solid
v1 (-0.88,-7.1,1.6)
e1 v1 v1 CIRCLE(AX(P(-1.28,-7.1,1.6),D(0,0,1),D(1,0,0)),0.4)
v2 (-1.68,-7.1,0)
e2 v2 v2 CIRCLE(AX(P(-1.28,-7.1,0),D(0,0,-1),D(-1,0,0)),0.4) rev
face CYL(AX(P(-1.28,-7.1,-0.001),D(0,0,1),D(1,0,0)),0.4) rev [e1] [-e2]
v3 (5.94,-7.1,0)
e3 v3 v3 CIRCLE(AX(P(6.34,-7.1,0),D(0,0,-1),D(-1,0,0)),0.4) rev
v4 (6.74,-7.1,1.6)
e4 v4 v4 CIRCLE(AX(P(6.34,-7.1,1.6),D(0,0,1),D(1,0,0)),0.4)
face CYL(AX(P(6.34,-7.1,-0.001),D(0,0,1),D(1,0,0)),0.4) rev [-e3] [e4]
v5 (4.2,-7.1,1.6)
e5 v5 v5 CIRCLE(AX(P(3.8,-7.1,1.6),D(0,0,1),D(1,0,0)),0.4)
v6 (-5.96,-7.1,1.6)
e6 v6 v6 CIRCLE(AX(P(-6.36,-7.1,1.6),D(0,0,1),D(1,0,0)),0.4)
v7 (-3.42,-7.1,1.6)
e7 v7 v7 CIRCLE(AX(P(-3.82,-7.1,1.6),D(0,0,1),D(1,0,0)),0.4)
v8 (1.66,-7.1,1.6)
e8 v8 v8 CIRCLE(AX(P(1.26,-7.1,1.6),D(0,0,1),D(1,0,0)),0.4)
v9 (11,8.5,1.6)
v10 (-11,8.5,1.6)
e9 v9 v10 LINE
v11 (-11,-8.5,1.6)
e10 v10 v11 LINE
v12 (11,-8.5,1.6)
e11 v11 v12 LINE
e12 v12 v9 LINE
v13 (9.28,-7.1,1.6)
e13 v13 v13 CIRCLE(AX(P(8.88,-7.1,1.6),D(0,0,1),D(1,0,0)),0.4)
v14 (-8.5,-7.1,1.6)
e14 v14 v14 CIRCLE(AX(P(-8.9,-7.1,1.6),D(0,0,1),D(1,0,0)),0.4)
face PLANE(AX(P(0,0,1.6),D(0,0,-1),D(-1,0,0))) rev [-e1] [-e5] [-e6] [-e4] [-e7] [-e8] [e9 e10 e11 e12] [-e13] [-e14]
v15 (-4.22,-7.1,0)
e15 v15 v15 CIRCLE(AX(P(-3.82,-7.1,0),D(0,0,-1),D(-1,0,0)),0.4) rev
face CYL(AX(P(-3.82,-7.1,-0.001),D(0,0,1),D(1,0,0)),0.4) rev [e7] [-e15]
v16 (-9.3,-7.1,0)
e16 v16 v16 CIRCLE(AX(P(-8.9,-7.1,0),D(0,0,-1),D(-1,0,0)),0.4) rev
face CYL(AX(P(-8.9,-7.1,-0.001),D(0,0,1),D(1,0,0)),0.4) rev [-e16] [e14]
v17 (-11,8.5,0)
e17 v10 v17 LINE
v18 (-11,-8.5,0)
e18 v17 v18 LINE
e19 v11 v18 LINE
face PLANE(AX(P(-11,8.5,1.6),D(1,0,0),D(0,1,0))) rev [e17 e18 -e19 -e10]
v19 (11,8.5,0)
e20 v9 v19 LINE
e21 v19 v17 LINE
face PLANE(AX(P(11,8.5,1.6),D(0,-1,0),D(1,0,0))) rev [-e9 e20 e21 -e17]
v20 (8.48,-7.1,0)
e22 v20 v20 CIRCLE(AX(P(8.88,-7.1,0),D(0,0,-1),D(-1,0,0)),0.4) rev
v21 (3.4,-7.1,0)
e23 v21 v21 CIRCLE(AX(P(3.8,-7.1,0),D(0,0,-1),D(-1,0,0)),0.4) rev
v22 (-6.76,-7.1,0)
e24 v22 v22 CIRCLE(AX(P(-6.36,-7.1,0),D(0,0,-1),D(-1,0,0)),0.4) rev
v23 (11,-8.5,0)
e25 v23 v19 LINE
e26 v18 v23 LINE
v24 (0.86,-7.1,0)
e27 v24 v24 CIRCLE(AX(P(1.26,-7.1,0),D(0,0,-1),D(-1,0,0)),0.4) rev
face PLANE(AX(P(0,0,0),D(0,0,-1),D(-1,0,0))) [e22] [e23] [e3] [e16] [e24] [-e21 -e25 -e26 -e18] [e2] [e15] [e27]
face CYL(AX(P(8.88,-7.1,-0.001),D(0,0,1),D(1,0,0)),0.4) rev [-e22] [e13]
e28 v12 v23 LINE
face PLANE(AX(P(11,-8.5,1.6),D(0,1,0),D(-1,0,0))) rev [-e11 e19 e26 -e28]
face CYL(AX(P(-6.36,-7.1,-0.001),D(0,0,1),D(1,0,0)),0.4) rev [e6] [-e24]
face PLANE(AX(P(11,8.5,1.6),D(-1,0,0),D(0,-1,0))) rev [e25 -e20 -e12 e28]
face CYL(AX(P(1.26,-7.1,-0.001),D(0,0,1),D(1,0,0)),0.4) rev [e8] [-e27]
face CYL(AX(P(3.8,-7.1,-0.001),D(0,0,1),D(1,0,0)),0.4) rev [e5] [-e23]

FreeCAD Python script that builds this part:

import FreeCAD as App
import Part
import Sketcher

V = App.Vector
Q = App.Units.Quantity


def add_polygon(sketch, points):
    """Adds a closed chain of lines whose ends are joined by coincident constraints."""
    first, n = sketch.GeometryCount, len(points)
    for a, b in zip(points, points[1:] + points[:1]):
        sketch.addGeometry(Part.LineSegment(App.Vector(*a, 0), App.Vector(*b, 0)), False)
    for i in range(n):
        sketch.addConstraint(Sketcher.Constraint("Coincident", first + i, 2, first + (i + 1) % n, 1))

doc = App.newDocument("Part")
params = doc.addObject("Spreadsheet::Sheet", "Params")
for row, (alias, value) in enumerate([
    ("sketch1_width", "22 mm"),
    ("sketch1_height", "17 mm"),
    ("pad1_length", "1.6 mm"),
    ("sketch2_diameter", "0.8 mm"),
    ("sketch3_diameter", "0.8 mm"),
    ("sketch4_diameter", "0.8 mm"),
    ("sketch5_diameter", "0.8 mm"),
    ("sketch6_diameter", "0.8 mm"),
    ("sketch7_diameter", "0.8 mm"),
    ("sketch8_diameter", "0.8 mm"),
    ("sketch9_diameter", "0.8 mm"),
], start=1):
    params.set(f"A{row}", alias)
    params.set(f"B{row}", "=" + value)
    params.setAlias(f"B{row}", alias)

body = doc.addObject("PartDesign::Body", "Body")

# Sketch on XY plane
sketch1 = body.newObject("Sketcher::SketchObject", "Sketch")
sketch1.AttachmentSupport = (doc.getObject("XY_Plane"), [""])
sketch1.MapMode = "FlatFace"
add_polygon(sketch1, [(-11, 8), (-11, -8), (11, -8), (11, 8)])  # lines 0-3
sketch1.addConstraint([
    Sketcher.Constraint("Vertical", 0),
    Sketcher.Constraint("Horizontal", 1),
    Sketcher.Constraint("Vertical", 2),
    Sketcher.Constraint("Horizontal", 3),
    Sketcher.Constraint("Symmetric", 0, 2, 2, 2, -1, 1),
    Sketcher.Constraint("DistanceX", 1, 1, 1, 2, Q("22 mm")),
    Sketcher.Constraint("DistanceY", 0, 2, 0, 1, Q("17 mm")),
])
sketch1.setExpression("Constraints[9]", "Params.sketch1_width")
sketch1.setExpression("Constraints[10]", "Params.sketch1_height")
pad1 = body.newObject("PartDesign::Pad", "Pad")
pad1.Profile = sketch1
pad1.setExpression("Length", "Params.pad1_length")

# Sketch on XY plane
sketch2 = body.newObject("Sketcher::SketchObject", "Sketch001")
sketch2.AttachmentSupport = (doc.getObject("XY_Plane"), [""])
sketch2.MapMode = "FlatFace"
sketch2.AttachmentOffset = App.Placement(V(0, 0, 1.6), App.Rotation())
sketch2.addGeometry(Part.Circle(V(-8.9, -7.1, 0), V(0, 0, 1), 0.4), False)
sketch2.addConstraint([
    Sketcher.Constraint("Diameter", 0, Q("0.8 mm")),
    Sketcher.Constraint("DistanceX", 0, 3, -1, 1, Q("8.9 mm")),
    Sketcher.Constraint("DistanceY", 0, 3, -1, 1, Q("7.1 mm")),
])
sketch2.setExpression("Constraints[0]", "Params.sketch2_diameter")
pocket1 = body.newObject("PartDesign::Pocket", "Pocket")
pocket1.Profile = sketch2
pocket1.Type = "UpToFirst"

# Sketch on XY plane
sketch3 = body.newObject("Sketcher::SketchObject", "Sketch002")
sketch3.AttachmentSupport = (doc.getObject("XY_Plane"), [""])
sketch3.MapMode = "FlatFace"
sketch3.AttachmentOffset = App.Placement(V(0, 0, 1.6), App.Rotation())
sketch3.addGeometry(Part.Circle(V(-6.36, -7.1, 0), V(0, 0, 1), 0.4), False)
sketch3.addConstraint([
    Sketcher.Constraint("Diameter", 0, Q("0.8 mm")),
    Sketcher.Constraint("DistanceY", 0, 3, -1, 1, Q("7.1 mm")),
    Sketcher.Constraint("DistanceX", 0, 3, -1, 1, Q("6.36 mm")),
])
sketch3.setExpression("Constraints[0]", "Params.sketch3_diameter")
pocket2 = body.newObject("PartDesign::Pocket", "Pocket001")
pocket2.Profile = sketch3
pocket2.Type = "UpToFirst"

# Sketch on XY plane
sketch4 = body.newObject("Sketcher::SketchObject", "Sketch003")
sketch4.AttachmentSupport = (doc.getObject("XY_Plane"), [""])
sketch4.MapMode = "FlatFace"
sketch4.AttachmentOffset = App.Placement(V(0, 0, 1.6), App.Rotation())
sketch4.addGeometry(Part.Circle(V(-3.82, -7.1, 0), V(0, 0, 1), 0.4), False)
sketch4.addConstraint([
    Sketcher.Constraint("Diameter", 0, Q("0.8 mm")),
    Sketcher.Constraint("DistanceY", 0, 3, -1, 1, Q("7.1 mm")),
    Sketcher.Constraint("DistanceX", 0, 3, -1, 1, Q("3.82 mm")),
])
sketch4.setExpression("Constraints[0]", "Params.sketch4_diameter")
pocket3 = body.newObject("PartDesign::Pocket", "Pocket002")
pocket3.Profile = sketch4
pocket3.Type = "UpToFirst"

# Sketch on XY plane
sketch5 = body.newObject("Sketcher::SketchObject", "Sketch004")
sketch5.AttachmentSupport = (doc.getObject("XY_Plane"), [""])
sketch5.MapMode = "FlatFace"
sketch5.AttachmentOffset = App.Placement(V(0, 0, 1.6), App.Rotation())
sketch5.addGeometry(Part.Circle(V(-1.28, -7.1, 0), V(0, 0, 1), 0.4), False)
sketch5.addConstraint([
    Sketcher.Constraint("Diameter", 0, Q("0.8 mm")),
    Sketcher.Constraint("DistanceY", 0, 3, -1, 1, Q("7.1 mm")),
    Sketcher.Constraint("DistanceX", 0, 3, -1, 1, Q("1.28 mm")),
])
sketch5.setExpression("Constraints[0]", "Params.sketch5_diameter")
pocket4 = body.newObject("PartDesign::Pocket", "Pocket003")
pocket4.Profile = sketch5
pocket4.Type = "UpToFirst"

# Sketch on XY plane
sketch6 = body.newObject("Sketcher::SketchObject", "Sketch005")
sketch6.AttachmentSupport = (doc.getObject("XY_Plane"), [""])
sketch6.MapMode = "FlatFace"
sketch6.AttachmentOffset = App.Placement(V(0, 0, 1.6), App.Rotation())
sketch6.addGeometry(Part.Circle(V(1.26, -7.1, 0), V(0, 0, 1), 0.4), False)
sketch6.addConstraint([
    Sketcher.Constraint("Diameter", 0, Q("0.8 mm")),
    Sketcher.Constraint("DistanceY", 0, 3, -1, 1, Q("7.1 mm")),
    Sketcher.Constraint("DistanceX", -1, 1, 0, 3, Q("1.26 mm")),
])
sketch6.setExpression("Constraints[0]", "Params.sketch6_diameter")
pocket5 = body.newObject("PartDesign::Pocket", "Pocket004")
pocket5.Profile = sketch6
pocket5.Type = "UpToFirst"

# Sketch on XY plane
sketch7 = body.newObject("Sketcher::SketchObject", "Sketch006")
sketch7.AttachmentSupport = (doc.getObject("XY_Plane"), [""])
sketch7.MapMode = "FlatFace"
sketch7.AttachmentOffset = App.Placement(V(0, 0, 1.6), App.Rotation())
sketch7.addGeometry(Part.Circle(V(3.8, -7.1, 0), V(0, 0, 1), 0.4), False)
sketch7.addConstraint([
    Sketcher.Constraint("Diameter", 0, Q("0.8 mm")),
    Sketcher.Constraint("DistanceX", -1, 1, 0, 3, Q("3.8 mm")),
    Sketcher.Constraint("DistanceY", 0, 3, -1, 1, Q("7.1 mm")),
])
sketch7.setExpression("Constraints[0]", "Params.sketch7_diameter")
pocket6 = body.newObject("PartDesign::Pocket", "Pocket005")
pocket6.Profile = sketch7
pocket6.Type = "UpToFirst"

# Sketch on XY plane
sketch8 = body.newObject("Sketcher::SketchObject", "Sketch007")
sketch8.AttachmentSupport = (doc.getObject("XY_Plane"), [""])
sketch8.MapMode = "FlatFace"
sketch8.AttachmentOffset = App.Placement(V(0, 0, 1.6), App.Rotation())
sketch8.addGeometry(Part.Circle(V(6.34, -7.1, 0), V(0, 0, 1), 0.4), False)
sketch8.addConstraint([
    Sketcher.Constraint("Diameter", 0, Q("0.8 mm")),
    Sketcher.Constraint("DistanceY", 0, 3, -1, 1, Q("7.1 mm")),
    Sketcher.Constraint("DistanceX", -1, 1, 0, 3, Q("6.34 mm")),
])
sketch8.setExpression("Constraints[0]", "Params.sketch8_diameter")
pocket7 = body.newObject("PartDesign::Pocket", "Pocket006")
pocket7.Profile = sketch8
pocket7.Type = "UpToFirst"

# Sketch on XY plane
sketch9 = body.newObject("Sketcher::SketchObject", "Sketch008")
sketch9.AttachmentSupport = (doc.getObject("XY_Plane"), [""])
sketch9.MapMode = "FlatFace"
sketch9.AttachmentOffset = App.Placement(V(0, 0, 1.6), App.Rotation())
sketch9.addGeometry(Part.Circle(V(8.88, -7.1, 0), V(0, 0, 1), 0.4), False)
sketch9.addConstraint([
    Sketcher.Constraint("Diameter", 0, Q("0.8 mm")),
    Sketcher.Constraint("DistanceY", 0, 3, -1, 1, Q("7.1 mm")),
    Sketcher.Constraint("DistanceX", -1, 1, 0, 3, Q("8.88 mm")),
])
sketch9.setExpression("Constraints[0]", "Params.sketch9_diameter")
pocket8 = body.newObject("PartDesign::Pocket", "Pocket007")
pocket8.Profile = sketch9
pocket8.Type = "UpToFirst"

doc.recompute()
